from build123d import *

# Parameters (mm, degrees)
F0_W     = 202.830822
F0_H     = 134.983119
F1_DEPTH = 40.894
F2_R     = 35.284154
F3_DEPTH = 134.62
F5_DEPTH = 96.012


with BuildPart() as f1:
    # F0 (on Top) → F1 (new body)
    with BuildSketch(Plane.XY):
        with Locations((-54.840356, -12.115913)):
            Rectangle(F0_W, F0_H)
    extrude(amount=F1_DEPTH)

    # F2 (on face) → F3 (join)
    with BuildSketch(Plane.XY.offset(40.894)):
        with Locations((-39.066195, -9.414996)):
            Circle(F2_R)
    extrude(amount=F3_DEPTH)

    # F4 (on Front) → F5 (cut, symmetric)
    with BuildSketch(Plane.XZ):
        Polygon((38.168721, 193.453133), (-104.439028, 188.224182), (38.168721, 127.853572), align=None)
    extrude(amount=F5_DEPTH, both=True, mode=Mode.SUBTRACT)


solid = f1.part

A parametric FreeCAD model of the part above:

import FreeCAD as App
import Part
import Sketcher

V = App.Vector
Q = App.Units.Quantity

doc = App.newDocument("Part")
body = doc.addObject("PartDesign::Body", "Body")

# Sketch on XY plane
sketch1 = body.newObject("Sketcher::SketchObject", "Sketch")
sketch1.AttachmentSupport = (doc.getObject("XY_Plane"), [""])
sketch1.MapMode = "FlatFace"
sketch1.addGeometry([
    Part.LineSegment(V(-156, 55, 0), V(-156, -80, 0)),
    Part.LineSegment(V(-156, -80, 0), V(47, -80, 0)),
    Part.LineSegment(V(47, -80, 0), V(47, 55, 0)),
    Part.LineSegment(V(47, 55, 0), V(-156, 55, 0)),
], False)
sketch1.addConstraint([
    Sketcher.Constraint("Coincident", 0, 2, 1, 1),
    Sketcher.Constraint("Coincident", 1, 2, 2, 1),
    Sketcher.Constraint("Coincident", 2, 2, 3, 1),
    Sketcher.Constraint("Coincident", 3, 2, 0, 1),
    Sketcher.Constraint("Vertical", 0),
    Sketcher.Constraint("Horizontal", 1),
    Sketcher.Constraint("Vertical", 2),
    Sketcher.Constraint("Horizontal", 3),
    Sketcher.Constraint("DistanceX", 1, 1, 1, 2, 202.830822),
    Sketcher.Constraint("DistanceY", 0, 2, 0, 1, 134.983119),
    Sketcher.Constraint("DistanceX", 0, 2, -1, 1, 156.255767),
    Sketcher.Constraint("DistanceY", 0, 2, -1, 1, 79.607473),
])
pad1 = body.newObject("PartDesign::Pad", "Pad")
pad1.Profile = sketch1
pad1.Length = Q("1.61 in")

# Sketch on XY plane
sketch2 = body.newObject("Sketcher::SketchObject", "Sketch001")
sketch2.AttachmentSupport = (doc.getObject("XY_Plane"), [""])
sketch2.MapMode = "FlatFace"
sketch2.AttachmentOffset = App.Placement(V(0, 0, 1.61 * 25.4), App.Rotation())
sketch2.addGeometry(Part.Circle(V(-39, -9, 0), V(0, 0, 1), 35), False)
sketch2.addConstraint([
    Sketcher.Constraint("Diameter", 0, 70.568308),
    Sketcher.Constraint("DistanceX", 0, 3, -1, 1, 39.066195),
    Sketcher.Constraint("DistanceY", 0, 3, -1, 1, 9.414996),
])
pad2 = body.newObject("PartDesign::Pad", "Pad001")
pad2.Profile = sketch2
pad2.Length = Q("5.3 in")

# Sketch on XZ plane
sketch3 = body.newObject("Sketcher::SketchObject", "Sketch002")
sketch3.AttachmentSupport = (doc.getObject("XZ_Plane"), [""])
sketch3.MapMode = "FlatFace"
sketch3.addGeometry([
    Part.LineSegment(V(38, 193, 0), V(-104, 188, 0)),
    Part.LineSegment(V(-104, 188, 0), V(38, 128, 0)),
    Part.LineSegment(V(38, 128, 0), V(38, 193, 0)),
], False)
sketch3.addConstraint([
    Sketcher.Constraint("Coincident", 0, 2, 1, 1),
    Sketcher.Constraint("Coincident", 1, 2, 2, 1),
    Sketcher.Constraint("Coincident", 2, 2, 0, 1),
    Sketcher.Constraint("Vertical", 2),
    Sketcher.Constraint("DistanceY", 2, 1, 2, 2, 65.599561),
    Sketcher.Constraint("Distance", 0, 142.703581),
    Sketcher.Constraint("DistanceX", -1, 1, 1, 2, 38.168721),
    Sketcher.Constraint("DistanceY", -1, 1, 1, 2, 127.853572),
    Sketcher.Constraint("DistanceX", 0, 2, 1, 2, 142.607749),
])
pocket1 = body.newObject("PartDesign::Pocket", "Pocket")
pocket1.Profile = sketch3
pocket1.Length = Q("7.56 in")
pocket1.Midplane = True

doc.recompute()
